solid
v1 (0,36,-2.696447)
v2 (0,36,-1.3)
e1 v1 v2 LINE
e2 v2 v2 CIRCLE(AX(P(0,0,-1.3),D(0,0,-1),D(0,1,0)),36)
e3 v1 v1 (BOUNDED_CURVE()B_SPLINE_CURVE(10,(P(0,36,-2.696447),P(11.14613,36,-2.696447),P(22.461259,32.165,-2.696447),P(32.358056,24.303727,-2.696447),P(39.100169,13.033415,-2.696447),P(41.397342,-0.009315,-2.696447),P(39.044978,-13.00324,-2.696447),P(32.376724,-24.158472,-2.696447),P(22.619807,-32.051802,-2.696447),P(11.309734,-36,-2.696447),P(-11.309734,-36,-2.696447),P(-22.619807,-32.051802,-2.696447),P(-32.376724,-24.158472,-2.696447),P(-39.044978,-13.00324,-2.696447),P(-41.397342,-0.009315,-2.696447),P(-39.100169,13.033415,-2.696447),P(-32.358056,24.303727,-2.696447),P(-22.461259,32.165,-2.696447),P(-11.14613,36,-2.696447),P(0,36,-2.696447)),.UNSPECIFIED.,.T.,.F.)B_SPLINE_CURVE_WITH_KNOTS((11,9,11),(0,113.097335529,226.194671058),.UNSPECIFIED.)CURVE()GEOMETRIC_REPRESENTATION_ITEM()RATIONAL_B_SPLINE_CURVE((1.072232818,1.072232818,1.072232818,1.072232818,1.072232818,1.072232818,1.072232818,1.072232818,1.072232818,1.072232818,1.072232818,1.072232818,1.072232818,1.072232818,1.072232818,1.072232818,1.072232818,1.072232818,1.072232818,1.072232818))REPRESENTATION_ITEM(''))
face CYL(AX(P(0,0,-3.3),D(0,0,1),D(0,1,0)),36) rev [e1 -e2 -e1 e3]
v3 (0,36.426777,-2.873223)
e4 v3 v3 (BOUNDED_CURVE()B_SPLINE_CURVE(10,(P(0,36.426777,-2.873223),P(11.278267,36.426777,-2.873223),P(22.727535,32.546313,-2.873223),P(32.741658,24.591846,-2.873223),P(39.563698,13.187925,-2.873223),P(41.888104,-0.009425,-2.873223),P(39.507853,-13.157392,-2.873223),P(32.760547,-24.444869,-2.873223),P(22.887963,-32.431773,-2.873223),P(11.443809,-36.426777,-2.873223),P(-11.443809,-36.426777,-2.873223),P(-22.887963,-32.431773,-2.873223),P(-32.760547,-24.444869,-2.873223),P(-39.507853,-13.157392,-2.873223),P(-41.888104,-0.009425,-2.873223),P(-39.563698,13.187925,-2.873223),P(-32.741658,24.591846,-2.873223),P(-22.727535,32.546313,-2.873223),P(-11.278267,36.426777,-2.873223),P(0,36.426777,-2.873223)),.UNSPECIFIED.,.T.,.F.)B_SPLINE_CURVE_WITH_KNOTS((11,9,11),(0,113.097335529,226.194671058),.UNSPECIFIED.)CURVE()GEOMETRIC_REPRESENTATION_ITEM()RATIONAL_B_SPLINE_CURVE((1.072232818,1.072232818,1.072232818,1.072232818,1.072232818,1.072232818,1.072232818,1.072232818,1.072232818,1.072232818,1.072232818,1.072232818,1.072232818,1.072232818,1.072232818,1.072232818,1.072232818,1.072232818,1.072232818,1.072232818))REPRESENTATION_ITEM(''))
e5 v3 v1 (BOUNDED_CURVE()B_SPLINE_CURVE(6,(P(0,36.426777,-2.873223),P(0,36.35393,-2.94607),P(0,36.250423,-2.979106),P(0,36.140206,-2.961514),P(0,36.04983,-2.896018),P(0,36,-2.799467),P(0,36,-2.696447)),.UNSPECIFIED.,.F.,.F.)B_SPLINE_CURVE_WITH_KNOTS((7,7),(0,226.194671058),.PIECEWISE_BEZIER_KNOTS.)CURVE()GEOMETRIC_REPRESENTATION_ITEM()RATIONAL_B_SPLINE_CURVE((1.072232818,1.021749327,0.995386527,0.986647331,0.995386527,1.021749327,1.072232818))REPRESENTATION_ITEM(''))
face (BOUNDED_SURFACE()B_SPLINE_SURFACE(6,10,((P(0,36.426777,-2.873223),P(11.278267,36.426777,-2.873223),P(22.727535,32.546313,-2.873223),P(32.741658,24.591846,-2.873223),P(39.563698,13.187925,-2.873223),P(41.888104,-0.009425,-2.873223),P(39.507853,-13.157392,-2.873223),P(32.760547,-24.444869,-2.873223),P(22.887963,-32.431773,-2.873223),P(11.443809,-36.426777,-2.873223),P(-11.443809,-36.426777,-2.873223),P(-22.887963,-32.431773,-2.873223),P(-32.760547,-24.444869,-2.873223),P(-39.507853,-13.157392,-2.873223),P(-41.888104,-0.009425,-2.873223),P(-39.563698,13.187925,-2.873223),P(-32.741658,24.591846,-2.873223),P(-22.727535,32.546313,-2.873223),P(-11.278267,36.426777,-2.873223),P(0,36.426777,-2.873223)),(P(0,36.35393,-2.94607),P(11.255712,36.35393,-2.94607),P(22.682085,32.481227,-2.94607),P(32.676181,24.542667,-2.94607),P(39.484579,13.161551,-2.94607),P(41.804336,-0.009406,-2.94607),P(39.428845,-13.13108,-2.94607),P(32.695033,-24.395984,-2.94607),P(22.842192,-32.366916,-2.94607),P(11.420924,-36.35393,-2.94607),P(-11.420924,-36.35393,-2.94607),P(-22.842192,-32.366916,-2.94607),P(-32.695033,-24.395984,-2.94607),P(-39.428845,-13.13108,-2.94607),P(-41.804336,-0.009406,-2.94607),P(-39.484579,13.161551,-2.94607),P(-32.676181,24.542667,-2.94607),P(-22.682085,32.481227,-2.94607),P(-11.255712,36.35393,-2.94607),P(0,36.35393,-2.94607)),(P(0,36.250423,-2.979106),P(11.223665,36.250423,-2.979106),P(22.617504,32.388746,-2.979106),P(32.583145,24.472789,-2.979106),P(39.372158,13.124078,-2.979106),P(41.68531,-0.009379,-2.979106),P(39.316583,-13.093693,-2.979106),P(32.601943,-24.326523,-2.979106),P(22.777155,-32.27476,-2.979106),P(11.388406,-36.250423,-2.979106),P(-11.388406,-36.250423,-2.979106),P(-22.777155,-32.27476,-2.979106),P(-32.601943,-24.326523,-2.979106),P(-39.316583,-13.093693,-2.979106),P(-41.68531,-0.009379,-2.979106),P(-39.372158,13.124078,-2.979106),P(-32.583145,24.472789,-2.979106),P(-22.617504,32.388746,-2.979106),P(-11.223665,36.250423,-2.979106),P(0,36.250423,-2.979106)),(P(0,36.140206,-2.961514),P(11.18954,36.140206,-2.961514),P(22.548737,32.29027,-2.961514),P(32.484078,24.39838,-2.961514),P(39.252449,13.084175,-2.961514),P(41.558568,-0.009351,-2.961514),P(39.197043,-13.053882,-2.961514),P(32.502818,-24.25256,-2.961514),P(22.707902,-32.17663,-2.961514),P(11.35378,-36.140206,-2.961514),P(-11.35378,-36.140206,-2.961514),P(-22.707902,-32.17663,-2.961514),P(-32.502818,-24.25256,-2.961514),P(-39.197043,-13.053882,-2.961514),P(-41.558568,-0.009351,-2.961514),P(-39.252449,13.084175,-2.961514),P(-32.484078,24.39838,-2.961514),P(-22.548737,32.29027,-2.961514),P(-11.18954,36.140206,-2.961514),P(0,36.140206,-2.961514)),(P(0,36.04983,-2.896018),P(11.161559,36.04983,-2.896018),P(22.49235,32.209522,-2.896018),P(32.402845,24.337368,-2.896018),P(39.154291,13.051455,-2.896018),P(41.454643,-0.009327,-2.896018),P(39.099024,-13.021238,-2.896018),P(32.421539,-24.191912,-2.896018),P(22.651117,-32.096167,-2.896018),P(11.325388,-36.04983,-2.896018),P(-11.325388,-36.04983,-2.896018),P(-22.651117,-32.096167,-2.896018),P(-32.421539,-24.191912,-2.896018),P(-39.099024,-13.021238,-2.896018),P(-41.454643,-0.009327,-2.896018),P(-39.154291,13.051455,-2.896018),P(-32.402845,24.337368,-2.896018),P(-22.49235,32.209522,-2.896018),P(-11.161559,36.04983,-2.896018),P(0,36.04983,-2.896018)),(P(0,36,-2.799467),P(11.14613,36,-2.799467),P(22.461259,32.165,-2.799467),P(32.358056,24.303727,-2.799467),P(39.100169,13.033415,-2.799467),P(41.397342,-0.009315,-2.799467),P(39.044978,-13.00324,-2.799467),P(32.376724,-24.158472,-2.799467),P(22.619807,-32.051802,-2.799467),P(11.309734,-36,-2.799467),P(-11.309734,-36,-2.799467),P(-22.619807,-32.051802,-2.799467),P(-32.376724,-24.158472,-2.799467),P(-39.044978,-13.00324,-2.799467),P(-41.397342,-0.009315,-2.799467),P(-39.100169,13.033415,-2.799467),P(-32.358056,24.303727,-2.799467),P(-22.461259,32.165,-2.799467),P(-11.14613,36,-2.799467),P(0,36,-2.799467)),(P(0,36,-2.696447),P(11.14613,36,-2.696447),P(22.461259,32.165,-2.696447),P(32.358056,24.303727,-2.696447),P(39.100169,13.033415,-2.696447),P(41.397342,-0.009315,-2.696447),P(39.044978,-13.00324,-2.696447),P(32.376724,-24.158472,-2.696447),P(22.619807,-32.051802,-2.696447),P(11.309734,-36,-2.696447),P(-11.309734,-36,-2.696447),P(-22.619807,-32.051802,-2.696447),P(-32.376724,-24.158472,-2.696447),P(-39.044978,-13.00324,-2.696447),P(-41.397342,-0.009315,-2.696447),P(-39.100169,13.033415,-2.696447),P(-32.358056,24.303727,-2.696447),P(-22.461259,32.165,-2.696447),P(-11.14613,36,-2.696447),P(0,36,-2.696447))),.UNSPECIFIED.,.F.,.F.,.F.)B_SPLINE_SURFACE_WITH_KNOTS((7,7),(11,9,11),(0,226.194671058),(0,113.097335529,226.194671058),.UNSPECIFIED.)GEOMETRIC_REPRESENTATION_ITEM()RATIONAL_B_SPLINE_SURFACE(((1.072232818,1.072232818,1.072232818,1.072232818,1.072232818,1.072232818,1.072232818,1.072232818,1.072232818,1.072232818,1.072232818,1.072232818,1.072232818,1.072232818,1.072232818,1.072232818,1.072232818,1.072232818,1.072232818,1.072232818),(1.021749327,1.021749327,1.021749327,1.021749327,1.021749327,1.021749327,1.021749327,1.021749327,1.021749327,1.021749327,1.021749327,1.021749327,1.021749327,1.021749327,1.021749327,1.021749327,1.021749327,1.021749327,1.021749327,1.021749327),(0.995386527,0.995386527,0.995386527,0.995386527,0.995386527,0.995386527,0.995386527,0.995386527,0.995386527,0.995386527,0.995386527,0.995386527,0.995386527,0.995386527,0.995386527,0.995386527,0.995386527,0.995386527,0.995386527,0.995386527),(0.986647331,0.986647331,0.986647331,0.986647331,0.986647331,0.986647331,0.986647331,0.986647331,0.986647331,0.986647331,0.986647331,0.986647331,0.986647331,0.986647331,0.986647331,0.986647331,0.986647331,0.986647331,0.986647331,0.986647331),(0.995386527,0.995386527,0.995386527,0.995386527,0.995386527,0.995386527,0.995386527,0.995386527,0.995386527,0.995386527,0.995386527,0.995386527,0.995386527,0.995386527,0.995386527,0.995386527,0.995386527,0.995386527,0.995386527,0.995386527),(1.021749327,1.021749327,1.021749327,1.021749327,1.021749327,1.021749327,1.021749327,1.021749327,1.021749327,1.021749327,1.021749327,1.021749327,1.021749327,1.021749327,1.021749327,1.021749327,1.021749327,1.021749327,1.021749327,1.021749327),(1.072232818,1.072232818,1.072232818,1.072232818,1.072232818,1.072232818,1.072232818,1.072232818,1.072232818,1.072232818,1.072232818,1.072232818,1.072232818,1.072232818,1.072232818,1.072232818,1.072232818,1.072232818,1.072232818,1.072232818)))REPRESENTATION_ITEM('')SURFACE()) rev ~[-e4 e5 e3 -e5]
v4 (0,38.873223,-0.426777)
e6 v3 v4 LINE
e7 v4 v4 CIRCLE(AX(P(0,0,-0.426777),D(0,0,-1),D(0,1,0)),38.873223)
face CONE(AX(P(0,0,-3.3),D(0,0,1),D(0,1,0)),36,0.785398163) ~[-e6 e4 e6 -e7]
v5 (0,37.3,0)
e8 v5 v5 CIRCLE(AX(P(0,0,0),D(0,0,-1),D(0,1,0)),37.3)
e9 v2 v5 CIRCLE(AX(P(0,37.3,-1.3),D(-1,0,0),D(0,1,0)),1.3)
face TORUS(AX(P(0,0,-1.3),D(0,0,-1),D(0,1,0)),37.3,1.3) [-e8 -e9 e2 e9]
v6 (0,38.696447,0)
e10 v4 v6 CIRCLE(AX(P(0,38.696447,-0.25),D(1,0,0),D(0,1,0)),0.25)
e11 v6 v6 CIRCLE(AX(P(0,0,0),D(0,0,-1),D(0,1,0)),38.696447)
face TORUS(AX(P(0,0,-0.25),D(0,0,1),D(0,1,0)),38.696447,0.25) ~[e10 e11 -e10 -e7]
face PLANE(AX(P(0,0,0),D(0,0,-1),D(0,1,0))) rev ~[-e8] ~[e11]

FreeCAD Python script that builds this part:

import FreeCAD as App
import Part
import Sketcher

V = App.Vector
Q = App.Units.Quantity


def edges_at(feature, points):
    """Names of the edges that pass closest to the given points."""
    edges = feature.Shape.Edges
    near = lambda p: min(range(len(edges)), key=lambda i: edges[i].distToShape(Part.Vertex(*p))[0])
    return sorted({f"Edge{near(p) + 1}" for p in points})


def add_polygon(sketch, points):
    """Adds a closed chain of lines whose ends are joined by coincident constraints."""
    first, n = sketch.GeometryCount, len(points)
    for a, b in zip(points, points[1:] + points[:1]):
        sketch.addGeometry(Part.LineSegment(App.Vector(*a, 0), App.Vector(*b, 0)), False)
    for i in range(n):
        sketch.addConstraint(Sketcher.Constraint("Coincident", first + i, 2, first + (i + 1) % n, 1))

doc = App.newDocument("Part")
body = doc.addObject("PartDesign::Body", "Body")

# Sketch on YZ plane
sketch1 = body.newObject("Sketcher::SketchObject", "Sketch")
sketch1.AttachmentSupport = (doc.getObject("YZ_Plane"), [""])
sketch1.MapMode = "FlatFace"
add_polygon(sketch1, [(36, -3.3), (39.3, 0), (36, 0)])  # lines 0-2
sketch1.addConstraint(Sketcher.Constraint("Horizontal", 1))
sketch1.addConstraint(Sketcher.Constraint("Vertical", 2))
sketch1.addConstraint(Sketcher.Constraint("PointOnObject", 0, 2, -1))
sketch1.addConstraint(Sketcher.Constraint("Equal", 1, 2))
sketch1.addConstraint(Sketcher.Constraint("DistanceX", 1, 2, 1, 1, Q("3.3 mm")))
sketch1.addConstraint(Sketcher.Constraint("DistanceX", -1, 1, 1, 2, Q("36 mm")))
revolution = body.newObject("PartDesign::Revolution", "Revolution")
revolution.Profile = sketch1
revolution.ReferenceAxis = (sketch1, ["V_Axis"])
revolution.Angle = 360
doc.recompute()

fillet = body.newObject("PartDesign::Fillet", "Fillet")
fillet.Base = (revolution, edges_at(revolution, [(0, -36, 0)]))
fillet.Radius = 1.3
doc.recompute()

fillet2 = body.newObject("PartDesign::Fillet", "Fillet001")
fillet2.Base = (fillet, edges_at(fillet, [(0, -39.3, 0)]))
fillet2.Radius = 0.25
doc.recompute()

fillet3 = body.newObject("PartDesign::Fillet", "Fillet002")
fillet3.Base = (fillet2, edges_at(fillet2, [(0, -36, -3.3)]))
fillet3.Radius = 0.25

doc.recompute()
